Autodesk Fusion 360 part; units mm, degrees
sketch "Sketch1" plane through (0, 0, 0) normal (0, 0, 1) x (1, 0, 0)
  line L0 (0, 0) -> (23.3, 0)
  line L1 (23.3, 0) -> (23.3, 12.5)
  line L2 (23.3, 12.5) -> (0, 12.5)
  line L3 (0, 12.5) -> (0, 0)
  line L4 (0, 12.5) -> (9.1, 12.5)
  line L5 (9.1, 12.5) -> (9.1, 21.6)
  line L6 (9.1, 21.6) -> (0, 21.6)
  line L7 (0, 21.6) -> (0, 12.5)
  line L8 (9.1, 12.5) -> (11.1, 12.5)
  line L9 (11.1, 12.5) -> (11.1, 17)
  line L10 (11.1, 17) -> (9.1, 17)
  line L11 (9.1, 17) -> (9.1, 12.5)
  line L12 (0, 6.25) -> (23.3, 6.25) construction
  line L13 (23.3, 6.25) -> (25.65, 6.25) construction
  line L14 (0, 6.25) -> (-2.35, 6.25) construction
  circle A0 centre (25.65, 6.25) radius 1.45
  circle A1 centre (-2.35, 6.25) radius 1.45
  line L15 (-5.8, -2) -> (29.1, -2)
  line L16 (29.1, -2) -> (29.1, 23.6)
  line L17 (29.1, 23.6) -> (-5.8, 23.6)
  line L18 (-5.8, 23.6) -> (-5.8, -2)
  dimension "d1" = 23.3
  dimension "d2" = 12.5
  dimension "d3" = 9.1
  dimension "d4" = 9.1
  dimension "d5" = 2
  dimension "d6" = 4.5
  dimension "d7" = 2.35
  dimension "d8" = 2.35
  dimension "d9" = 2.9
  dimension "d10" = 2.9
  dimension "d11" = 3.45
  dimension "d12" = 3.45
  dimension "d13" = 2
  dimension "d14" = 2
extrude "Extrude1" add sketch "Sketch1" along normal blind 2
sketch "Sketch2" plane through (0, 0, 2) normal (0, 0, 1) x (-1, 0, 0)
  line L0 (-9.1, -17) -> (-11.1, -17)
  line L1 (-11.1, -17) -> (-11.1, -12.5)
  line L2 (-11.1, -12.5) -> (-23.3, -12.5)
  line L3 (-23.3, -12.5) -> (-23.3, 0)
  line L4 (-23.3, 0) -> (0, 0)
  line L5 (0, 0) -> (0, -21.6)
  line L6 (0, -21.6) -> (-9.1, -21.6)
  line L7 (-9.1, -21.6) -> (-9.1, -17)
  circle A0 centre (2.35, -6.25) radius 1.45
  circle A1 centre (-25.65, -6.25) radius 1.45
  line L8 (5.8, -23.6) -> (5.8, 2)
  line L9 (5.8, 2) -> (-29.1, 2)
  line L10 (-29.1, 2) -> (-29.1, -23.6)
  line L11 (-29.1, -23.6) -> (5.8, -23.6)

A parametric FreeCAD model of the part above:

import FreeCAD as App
import Part
import Sketcher
Q = App.Units.Quantity


def add_polygon(sketch, points):
    """Adds a closed chain of lines whose ends are joined by coincident constraints."""
    first, n = sketch.GeometryCount, len(points)
    for a, b in zip(points, points[1:] + points[:1]):
        sketch.addGeometry(Part.LineSegment(App.Vector(*a, 0), App.Vector(*b, 0)), False)
    for i in range(n):
        sketch.addConstraint(Sketcher.Constraint("Coincident", first + i, 2, first + (i + 1) % n, 1))

doc = App.newDocument("Part")
params = doc.addObject("Spreadsheet::Sheet", "Params")
for row, (alias, value) in enumerate([
    ("sketch1_diameter", "2.9 mm"),
    ("sketch1_width", "2 mm"),
    ("sketch1_width2", "23.3 mm"),
    ("sketch1_width3", "9.1 mm"),
    ("sketch1_height", "4.5 mm"),
    ("pad1_length", "2 mm"),
], start=1):
    params.set(f"A{row}", alias)
    params.set(f"B{row}", "=" + value)
    params.setAlias(f"B{row}", alias)

body = doc.addObject("PartDesign::Body", "Body")

sketch1 = doc.addObject("Sketcher::SketchObject", "Sketch")
body.addObject(sketch1)
sketch1.AttachmentSupport = (doc.XY_Plane, [""])
sketch1.MapMode = "FlatFace"
add_polygon(sketch1, [(-5.8, 23.6), (-5.8, -2), (29.1, -2), (29.1, 23.6)])
sketch1.addGeometry(Part.Circle(App.Vector(-2.4, 6.2, 0), App.Vector(0, 0, 1), 1.4), False)
sketch1.addGeometry(Part.Circle(App.Vector(25.6, 6.2, 0), App.Vector(0, 0, 1), 1.4), False)
add_polygon(sketch1, [(23.3, 0), (0, 0), (0, 21.6), (9.1, 21.6), (9.1, 17), (11.1, 17), (11.1, 12.5), (23.3, 12.5)])
sketch1.addConstraint([
    Sketcher.Constraint("Vertical", 0),
    Sketcher.Constraint("Horizontal", 1),
    Sketcher.Constraint("Vertical", 2),
    Sketcher.Constraint("Horizontal", 3),
    Sketcher.Constraint("Horizontal", 6),
    Sketcher.Constraint("Vertical", 7),
    Sketcher.Constraint("Horizontal", 8),
    Sketcher.Constraint("Vertical", 9),
    Sketcher.Constraint("Horizontal", 10),
    Sketcher.Constraint("Vertical", 11),
    Sketcher.Constraint("Horizontal", 12),
    Sketcher.Constraint("Vertical", 13),
    Sketcher.Constraint("Coincident", 6, 2, -1, 1),
    Sketcher.Constraint("Equal", 4, 5),
    Sketcher.Constraint("Horizontal", 4, 3, 5, 3),
    Sketcher.Constraint("Diameter", 4, Q("2.9 mm")),
    Sketcher.Constraint("DistanceX", 10, 1, 10, 2, Q("2 mm")),
    Sketcher.Constraint("DistanceX", 6, 2, 6, 1, Q("23.3 mm")),
    Sketcher.Constraint("DistanceX", 8, 1, 8, 2, Q("9.1 mm")),
    Sketcher.Constraint("DistanceY", 11, 2, 11, 1, Q("4.5 mm")),
    Sketcher.Constraint("DistanceY", 13, 2, 13, 1, Q("12.5 mm")),
    Sketcher.Constraint("DistanceY", 0, 2, -1, 1, Q("2 mm")),
    Sketcher.Constraint("DistanceY", 7, 2, 3, 2, Q("2 mm")),
    Sketcher.Constraint("DistanceY", 11, 2, 8, 2, Q("9.1 mm")),
    Sketcher.Constraint("DistanceX", 4, 3, -1, 1, Q("2.35 mm")),
    Sketcher.Constraint("DistanceX", 0, 2, 4, 3, Q("3.45 mm")),
    Sketcher.Constraint("DistanceX", 5, 3, 1, 2, Q("3.45 mm")),
    Sketcher.Constraint("DistanceX", 12, 2, 5, 3, Q("2.35 mm")),
    Sketcher.Constraint("DistanceY", -1, 1, 4, 3, Q("6.25 mm")),
])
sketch1.setExpression("Constraints[27]", "Params.sketch1_diameter")
sketch1.setExpression("Constraints[28]", "Params.sketch1_width")
sketch1.setExpression("Constraints[29]", "Params.sketch1_width2")
sketch1.setExpression("Constraints[30]", "Params.sketch1_width3")
sketch1.setExpression("Constraints[31]", "Params.sketch1_height")
pad1 = doc.addObject("PartDesign::Pad", "Pad")
body.addObject(pad1)
pad1.Profile = sketch1
pad1.setExpression("Length", "Params.pad1_length")

doc.recompute()
